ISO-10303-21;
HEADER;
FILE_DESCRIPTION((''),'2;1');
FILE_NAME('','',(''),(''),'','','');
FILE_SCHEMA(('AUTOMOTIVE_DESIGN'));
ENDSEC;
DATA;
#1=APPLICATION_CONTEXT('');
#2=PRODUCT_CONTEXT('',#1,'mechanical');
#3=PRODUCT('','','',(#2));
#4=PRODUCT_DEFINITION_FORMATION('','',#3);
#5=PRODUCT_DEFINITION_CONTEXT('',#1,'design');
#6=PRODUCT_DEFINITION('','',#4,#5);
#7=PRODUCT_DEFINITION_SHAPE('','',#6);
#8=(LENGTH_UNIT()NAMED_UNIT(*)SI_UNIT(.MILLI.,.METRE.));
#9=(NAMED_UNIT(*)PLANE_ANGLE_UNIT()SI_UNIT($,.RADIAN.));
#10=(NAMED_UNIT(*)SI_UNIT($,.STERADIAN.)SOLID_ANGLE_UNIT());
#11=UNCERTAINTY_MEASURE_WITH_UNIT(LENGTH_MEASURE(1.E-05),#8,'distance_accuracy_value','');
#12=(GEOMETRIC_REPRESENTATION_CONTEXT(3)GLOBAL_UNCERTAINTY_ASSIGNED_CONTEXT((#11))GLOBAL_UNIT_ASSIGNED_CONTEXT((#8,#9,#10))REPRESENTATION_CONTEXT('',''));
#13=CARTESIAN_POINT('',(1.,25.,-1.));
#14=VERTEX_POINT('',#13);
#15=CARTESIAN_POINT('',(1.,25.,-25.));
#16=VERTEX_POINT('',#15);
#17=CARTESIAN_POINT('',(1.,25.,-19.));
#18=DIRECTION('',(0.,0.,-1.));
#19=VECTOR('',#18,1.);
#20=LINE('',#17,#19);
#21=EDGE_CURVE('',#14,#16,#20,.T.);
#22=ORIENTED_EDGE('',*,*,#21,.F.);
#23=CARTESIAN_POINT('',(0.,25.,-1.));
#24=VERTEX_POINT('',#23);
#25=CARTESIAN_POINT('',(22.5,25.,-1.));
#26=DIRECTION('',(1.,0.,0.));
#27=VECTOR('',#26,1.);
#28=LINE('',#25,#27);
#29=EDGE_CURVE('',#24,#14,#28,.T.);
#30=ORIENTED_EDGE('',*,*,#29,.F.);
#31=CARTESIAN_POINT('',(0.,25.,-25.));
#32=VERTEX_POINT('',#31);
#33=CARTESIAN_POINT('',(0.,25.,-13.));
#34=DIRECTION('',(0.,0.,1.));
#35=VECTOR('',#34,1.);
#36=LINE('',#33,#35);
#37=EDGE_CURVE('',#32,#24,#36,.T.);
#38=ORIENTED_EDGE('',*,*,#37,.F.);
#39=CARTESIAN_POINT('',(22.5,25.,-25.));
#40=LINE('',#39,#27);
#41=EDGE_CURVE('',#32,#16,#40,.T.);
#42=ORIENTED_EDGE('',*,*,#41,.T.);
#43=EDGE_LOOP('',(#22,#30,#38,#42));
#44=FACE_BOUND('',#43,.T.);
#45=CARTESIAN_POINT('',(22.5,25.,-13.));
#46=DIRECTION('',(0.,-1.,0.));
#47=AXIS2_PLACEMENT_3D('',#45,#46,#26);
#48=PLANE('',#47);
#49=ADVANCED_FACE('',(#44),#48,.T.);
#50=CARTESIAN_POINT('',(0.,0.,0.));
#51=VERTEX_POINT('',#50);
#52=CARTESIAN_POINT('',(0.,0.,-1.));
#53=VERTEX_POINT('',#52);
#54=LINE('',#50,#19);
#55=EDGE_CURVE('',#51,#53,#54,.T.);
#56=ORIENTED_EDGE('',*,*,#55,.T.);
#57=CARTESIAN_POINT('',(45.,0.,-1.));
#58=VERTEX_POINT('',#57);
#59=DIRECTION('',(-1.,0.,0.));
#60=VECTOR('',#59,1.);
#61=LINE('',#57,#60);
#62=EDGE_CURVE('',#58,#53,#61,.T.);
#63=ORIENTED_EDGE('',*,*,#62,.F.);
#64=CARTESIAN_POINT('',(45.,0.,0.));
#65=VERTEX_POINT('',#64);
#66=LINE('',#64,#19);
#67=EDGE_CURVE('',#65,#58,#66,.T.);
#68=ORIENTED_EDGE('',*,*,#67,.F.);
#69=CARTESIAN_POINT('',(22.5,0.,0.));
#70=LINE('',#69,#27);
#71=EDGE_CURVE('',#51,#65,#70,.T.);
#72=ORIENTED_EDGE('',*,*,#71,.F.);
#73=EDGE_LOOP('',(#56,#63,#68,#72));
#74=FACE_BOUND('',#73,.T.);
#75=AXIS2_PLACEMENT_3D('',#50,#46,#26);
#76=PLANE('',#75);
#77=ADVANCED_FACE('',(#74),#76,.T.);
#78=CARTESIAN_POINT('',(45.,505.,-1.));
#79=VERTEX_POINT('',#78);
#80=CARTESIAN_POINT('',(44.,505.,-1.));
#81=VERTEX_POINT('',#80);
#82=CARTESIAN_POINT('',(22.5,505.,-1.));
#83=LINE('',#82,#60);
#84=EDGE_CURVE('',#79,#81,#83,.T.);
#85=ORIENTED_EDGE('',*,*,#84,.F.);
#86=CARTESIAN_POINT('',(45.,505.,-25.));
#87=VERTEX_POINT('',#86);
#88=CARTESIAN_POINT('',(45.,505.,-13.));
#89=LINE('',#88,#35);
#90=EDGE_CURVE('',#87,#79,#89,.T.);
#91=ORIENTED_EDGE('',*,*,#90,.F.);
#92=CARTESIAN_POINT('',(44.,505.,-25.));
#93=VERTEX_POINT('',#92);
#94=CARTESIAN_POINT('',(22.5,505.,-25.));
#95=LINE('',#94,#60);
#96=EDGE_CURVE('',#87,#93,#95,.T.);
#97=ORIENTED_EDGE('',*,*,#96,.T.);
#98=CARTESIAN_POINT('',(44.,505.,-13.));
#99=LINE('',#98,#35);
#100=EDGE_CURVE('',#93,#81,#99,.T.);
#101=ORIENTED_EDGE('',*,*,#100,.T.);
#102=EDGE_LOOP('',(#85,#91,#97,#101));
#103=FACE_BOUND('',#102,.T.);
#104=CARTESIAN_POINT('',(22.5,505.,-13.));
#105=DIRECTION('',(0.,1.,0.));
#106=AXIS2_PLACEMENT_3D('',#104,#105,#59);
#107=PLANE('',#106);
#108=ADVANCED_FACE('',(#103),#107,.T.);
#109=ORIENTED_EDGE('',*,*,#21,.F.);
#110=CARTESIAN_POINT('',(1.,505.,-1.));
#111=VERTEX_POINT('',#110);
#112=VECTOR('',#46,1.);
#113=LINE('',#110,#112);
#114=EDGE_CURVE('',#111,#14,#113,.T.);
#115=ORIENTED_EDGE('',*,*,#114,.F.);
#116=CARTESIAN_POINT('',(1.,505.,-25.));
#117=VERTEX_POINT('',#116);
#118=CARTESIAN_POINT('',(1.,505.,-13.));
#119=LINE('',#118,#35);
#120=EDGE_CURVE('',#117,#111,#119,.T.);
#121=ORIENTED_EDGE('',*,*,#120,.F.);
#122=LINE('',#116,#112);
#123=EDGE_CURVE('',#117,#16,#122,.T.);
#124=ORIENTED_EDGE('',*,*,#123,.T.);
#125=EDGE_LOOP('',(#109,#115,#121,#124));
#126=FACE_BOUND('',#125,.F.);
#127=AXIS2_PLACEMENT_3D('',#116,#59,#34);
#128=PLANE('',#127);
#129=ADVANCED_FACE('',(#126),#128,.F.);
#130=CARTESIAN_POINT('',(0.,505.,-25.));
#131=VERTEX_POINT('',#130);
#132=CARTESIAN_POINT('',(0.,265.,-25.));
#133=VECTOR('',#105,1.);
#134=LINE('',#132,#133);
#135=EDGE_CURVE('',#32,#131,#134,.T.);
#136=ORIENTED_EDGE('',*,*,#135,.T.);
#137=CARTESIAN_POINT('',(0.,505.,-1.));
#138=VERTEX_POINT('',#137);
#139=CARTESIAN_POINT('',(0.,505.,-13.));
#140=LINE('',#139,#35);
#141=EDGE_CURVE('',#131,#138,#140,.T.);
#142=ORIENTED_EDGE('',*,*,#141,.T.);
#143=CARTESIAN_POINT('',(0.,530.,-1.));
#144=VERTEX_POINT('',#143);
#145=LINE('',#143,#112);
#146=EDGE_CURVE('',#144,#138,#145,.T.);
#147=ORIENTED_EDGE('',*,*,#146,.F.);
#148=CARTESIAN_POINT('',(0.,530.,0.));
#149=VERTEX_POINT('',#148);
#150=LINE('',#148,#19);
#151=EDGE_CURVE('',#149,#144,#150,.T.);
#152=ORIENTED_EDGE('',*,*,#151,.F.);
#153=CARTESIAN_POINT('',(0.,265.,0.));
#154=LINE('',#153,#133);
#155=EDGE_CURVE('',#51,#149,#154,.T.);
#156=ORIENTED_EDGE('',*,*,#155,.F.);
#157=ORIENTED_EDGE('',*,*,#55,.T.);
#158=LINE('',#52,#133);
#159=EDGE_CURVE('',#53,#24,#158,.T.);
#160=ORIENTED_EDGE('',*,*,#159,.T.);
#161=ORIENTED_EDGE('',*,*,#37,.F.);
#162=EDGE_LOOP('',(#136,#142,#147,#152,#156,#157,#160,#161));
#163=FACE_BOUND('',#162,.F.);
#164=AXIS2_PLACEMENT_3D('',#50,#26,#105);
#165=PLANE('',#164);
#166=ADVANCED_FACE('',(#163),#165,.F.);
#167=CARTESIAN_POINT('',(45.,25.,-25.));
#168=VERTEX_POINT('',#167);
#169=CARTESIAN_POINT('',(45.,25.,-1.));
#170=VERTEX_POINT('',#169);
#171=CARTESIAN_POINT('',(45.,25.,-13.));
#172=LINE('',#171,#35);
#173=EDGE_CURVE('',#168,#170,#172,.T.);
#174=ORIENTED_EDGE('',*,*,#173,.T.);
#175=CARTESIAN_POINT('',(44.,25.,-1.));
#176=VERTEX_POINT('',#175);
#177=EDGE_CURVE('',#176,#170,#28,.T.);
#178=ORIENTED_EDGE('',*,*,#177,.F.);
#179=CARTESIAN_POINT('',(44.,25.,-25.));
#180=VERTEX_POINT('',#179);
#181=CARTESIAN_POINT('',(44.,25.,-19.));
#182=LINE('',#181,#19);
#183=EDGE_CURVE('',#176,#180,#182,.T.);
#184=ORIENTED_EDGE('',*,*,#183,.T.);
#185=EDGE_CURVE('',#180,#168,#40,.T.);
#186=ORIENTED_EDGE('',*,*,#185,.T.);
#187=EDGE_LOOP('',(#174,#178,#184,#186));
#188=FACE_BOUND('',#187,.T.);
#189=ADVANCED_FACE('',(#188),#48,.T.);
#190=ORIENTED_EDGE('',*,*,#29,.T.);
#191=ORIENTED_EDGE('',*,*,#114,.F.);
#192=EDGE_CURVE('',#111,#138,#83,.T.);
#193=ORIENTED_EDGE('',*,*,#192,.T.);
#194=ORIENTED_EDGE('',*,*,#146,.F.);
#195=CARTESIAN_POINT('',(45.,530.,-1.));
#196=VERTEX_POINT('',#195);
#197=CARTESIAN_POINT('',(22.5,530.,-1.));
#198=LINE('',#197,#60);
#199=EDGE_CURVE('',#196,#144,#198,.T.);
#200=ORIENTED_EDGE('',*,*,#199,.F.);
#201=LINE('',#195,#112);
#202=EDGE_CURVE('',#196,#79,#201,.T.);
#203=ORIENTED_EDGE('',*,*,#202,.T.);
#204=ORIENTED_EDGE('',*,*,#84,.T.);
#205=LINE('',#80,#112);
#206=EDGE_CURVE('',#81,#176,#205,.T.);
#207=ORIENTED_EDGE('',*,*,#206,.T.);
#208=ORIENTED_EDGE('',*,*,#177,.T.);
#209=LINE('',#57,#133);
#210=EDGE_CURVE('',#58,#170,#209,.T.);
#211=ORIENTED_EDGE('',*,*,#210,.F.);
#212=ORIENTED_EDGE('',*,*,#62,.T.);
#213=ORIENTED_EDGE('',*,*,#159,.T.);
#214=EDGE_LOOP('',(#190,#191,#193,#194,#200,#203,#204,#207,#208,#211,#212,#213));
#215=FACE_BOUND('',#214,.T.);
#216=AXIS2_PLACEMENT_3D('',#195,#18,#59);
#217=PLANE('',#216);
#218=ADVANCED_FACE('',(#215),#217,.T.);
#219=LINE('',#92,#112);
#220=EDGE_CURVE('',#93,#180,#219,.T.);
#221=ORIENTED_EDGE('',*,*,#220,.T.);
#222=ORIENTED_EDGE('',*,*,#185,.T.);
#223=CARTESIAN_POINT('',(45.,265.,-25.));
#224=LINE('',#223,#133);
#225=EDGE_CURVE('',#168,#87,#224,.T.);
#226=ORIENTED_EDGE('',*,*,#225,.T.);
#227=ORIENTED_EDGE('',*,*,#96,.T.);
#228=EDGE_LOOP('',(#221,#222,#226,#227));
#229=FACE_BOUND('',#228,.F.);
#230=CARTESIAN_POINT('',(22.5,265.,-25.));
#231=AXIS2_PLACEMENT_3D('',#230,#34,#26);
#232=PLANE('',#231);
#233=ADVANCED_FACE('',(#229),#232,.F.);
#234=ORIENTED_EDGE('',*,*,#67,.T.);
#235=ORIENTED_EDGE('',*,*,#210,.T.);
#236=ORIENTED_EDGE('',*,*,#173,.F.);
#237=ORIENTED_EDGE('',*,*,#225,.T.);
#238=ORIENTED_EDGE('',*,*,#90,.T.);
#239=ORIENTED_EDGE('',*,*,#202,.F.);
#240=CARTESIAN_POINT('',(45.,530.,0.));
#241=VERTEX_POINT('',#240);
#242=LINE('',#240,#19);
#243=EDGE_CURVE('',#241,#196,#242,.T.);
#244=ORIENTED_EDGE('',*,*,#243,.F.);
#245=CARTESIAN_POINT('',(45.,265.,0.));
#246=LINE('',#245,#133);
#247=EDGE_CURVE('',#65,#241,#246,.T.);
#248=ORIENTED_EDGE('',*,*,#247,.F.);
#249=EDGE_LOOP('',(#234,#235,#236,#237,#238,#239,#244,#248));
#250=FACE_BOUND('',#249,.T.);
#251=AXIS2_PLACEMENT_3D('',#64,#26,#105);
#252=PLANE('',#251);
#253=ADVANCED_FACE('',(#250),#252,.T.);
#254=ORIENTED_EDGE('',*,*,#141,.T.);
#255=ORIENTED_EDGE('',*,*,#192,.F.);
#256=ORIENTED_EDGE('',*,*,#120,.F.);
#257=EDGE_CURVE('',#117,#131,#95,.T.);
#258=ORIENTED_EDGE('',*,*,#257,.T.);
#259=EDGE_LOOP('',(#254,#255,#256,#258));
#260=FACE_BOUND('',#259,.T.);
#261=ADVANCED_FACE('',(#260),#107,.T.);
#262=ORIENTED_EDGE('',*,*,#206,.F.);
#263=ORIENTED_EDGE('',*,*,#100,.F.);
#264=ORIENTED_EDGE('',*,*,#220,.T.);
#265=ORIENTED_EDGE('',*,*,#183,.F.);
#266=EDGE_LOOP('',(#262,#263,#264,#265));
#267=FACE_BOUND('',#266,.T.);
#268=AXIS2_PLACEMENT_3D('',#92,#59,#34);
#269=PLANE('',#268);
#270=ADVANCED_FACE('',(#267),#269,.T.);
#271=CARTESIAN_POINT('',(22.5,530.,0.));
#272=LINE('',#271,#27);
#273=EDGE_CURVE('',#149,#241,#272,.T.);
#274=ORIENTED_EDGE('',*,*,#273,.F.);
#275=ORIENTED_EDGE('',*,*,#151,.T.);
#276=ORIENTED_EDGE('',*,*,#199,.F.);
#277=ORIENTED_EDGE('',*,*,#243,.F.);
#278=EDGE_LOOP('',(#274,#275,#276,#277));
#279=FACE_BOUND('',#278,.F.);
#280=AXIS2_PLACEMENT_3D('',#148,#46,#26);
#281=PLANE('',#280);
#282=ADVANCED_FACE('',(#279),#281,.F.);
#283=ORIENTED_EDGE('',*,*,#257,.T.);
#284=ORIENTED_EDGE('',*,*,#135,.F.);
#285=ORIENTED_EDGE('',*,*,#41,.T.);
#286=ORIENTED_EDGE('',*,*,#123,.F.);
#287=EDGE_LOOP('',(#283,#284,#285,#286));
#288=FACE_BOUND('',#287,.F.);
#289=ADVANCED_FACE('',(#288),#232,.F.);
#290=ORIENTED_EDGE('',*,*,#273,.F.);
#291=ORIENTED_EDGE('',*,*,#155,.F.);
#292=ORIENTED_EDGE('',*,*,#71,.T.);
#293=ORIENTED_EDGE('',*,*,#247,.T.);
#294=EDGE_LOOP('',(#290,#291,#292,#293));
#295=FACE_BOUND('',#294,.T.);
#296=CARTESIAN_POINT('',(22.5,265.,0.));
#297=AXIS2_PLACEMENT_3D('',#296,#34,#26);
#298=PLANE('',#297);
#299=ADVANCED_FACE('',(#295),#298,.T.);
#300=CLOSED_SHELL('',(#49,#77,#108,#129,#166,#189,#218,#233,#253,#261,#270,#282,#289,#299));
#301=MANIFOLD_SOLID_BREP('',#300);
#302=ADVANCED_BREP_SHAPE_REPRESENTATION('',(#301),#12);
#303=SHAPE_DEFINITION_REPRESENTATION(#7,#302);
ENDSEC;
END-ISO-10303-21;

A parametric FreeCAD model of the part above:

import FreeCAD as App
import Part
import Sketcher

V = App.Vector
Q = App.Units.Quantity

doc = App.newDocument("Part")
body = doc.addObject("PartDesign::Body", "Body")

# Sketch on XY plane
sketch1 = body.newObject("Sketcher::SketchObject", "Sketch")
sketch1.AttachmentSupport = (doc.getObject("XY_Plane"), [""])
sketch1.MapMode = "FlatFace"
sketch1.addGeometry([
    Part.LineSegment(V(0, 530, 0), V(0, 0, 0)),
    Part.LineSegment(V(0, 0, 0), V(45, 0, 0)),
    Part.LineSegment(V(45, 0, 0), V(45, 530, 0)),
    Part.LineSegment(V(45, 530, 0), V(0, 530, 0)),
], False)
sketch1.addConstraint([
    Sketcher.Constraint("Coincident", 0, 2, 1, 1),
    Sketcher.Constraint("Coincident", 1, 2, 2, 1),
    Sketcher.Constraint("Coincident", 2, 2, 3, 1),
    Sketcher.Constraint("Coincident", 3, 2, 0, 1),
    Sketcher.Constraint("Vertical", 0),
    Sketcher.Constraint("Horizontal", 1),
    Sketcher.Constraint("Vertical", 2),
    Sketcher.Constraint("Horizontal", 3),
    Sketcher.Constraint("Coincident", 0, 2, -1, 1),
    Sketcher.Constraint("DistanceX", 1, 1, 1, 2, Q("45 mm")),
    Sketcher.Constraint("DistanceY", 0, 2, 0, 1, Q("530 mm")),
])
pad1 = body.newObject("PartDesign::Pad", "Pad")
pad1.Profile = sketch1
pad1.Length = 25
pad1.Reversed = True

# Sketch on XZ plane
sketch2 = body.newObject("Sketcher::SketchObject", "Sketch001")
sketch2.AttachmentSupport = (doc.getObject("XZ_Plane"), [""])
sketch2.MapMode = "FlatFace"
sketch2.addGeometry([
    Part.LineSegment(V(0, -1, 0), V(0, -25, 0)),
    Part.LineSegment(V(0, -25, 0), V(45, -25, 0)),
    Part.LineSegment(V(45, -25, 0), V(45, -1, 0)),
    Part.LineSegment(V(45, -1, 0), V(0, -1, 0)),
], False)
sketch2.addConstraint([
    Sketcher.Constraint("Coincident", 0, 2, 1, 1),
    Sketcher.Constraint("Coincident", 1, 2, 2, 1),
    Sketcher.Constraint("Coincident", 2, 2, 3, 1),
    Sketcher.Constraint("Coincident", 3, 2, 0, 1),
    Sketcher.Constraint("Vertical", 0),
    Sketcher.Constraint("Horizontal", 1),
    Sketcher.Constraint("Vertical", 2),
    Sketcher.Constraint("Horizontal", 3),
    Sketcher.Constraint("PointOnObject", 0, 2, -2),
    Sketcher.Constraint("DistanceX", 1, 1, 1, 2, Q("45 mm")),
    Sketcher.Constraint("DistanceY", 0, 2, 0, 1, Q("24 mm")),
    Sketcher.Constraint("DistanceY", 0, 2, -1, 1, Q("25 mm")),
])
pocket1 = body.newObject("PartDesign::Pocket", "Pocket")
pocket1.Profile = sketch2
pocket1.Length = 25

# Sketch on XZ plane
sketch3 = body.newObject("Sketcher::SketchObject", "Sketch002")
sketch3.AttachmentSupport = (doc.getObject("XZ_Plane"), [""])
sketch3.MapMode = "FlatFace"
sketch3.AttachmentOffset = App.Placement(V(0, 0, -530), App.Rotation())
sketch3.addGeometry([
    Part.LineSegment(V(45, -1, 0), V(45, -25, 0)),
    Part.LineSegment(V(45, -25, 0), V(0, -25, 0)),
    Part.LineSegment(V(0, -25, 0), V(0, -1, 0)),
    Part.LineSegment(V(0, -1, 0), V(45, -1, 0)),
], False)
sketch3.addConstraint([
    Sketcher.Constraint("Coincident", 0, 2, 1, 1),
    Sketcher.Constraint("Coincident", 1, 2, 2, 1),
    Sketcher.Constraint("Coincident", 2, 2, 3, 1),
    Sketcher.Constraint("Coincident", 3, 2, 0, 1),
    Sketcher.Constraint("Vertical", 0),
    Sketcher.Constraint("Horizontal", 1),
    Sketcher.Constraint("Vertical", 2),
    Sketcher.Constraint("Horizontal", 3),
    Sketcher.Constraint("PointOnObject", 1, 2, -2),
    Sketcher.Constraint("DistanceX", 1, 2, 1, 1, Q("45 mm")),
    Sketcher.Constraint("DistanceY", 0, 2, 0, 1, Q("24 mm")),
    Sketcher.Constraint("DistanceY", 0, 2, -1, 1, Q("25 mm")),
])
pocket2 = body.newObject("PartDesign::Pocket", "Pocket001")
pocket2.Profile = sketch3
pocket2.Length = 25
pocket2.Reversed = True

# Sketch on XZ plane
sketch4 = body.newObject("Sketcher::SketchObject", "Sketch003")
sketch4.AttachmentSupport = (doc.getObject("XZ_Plane"), [""])
sketch4.MapMode = "FlatFace"
sketch4.AttachmentOffset = App.Placement(V(0, 0, -505), App.Rotation())
sketch4.addGeometry([
    Part.LineSegment(V(44, -1, 0), V(44, -25, 0)),
    Part.LineSegment(V(44, -25, 0), V(1, -25, 0)),
    Part.LineSegment(V(1, -25, 0), V(1, -1, 0)),
    Part.LineSegment(V(1, -1, 0), V(44, -1, 0)),
], False)
sketch4.addConstraint([
    Sketcher.Constraint("Coincident", 0, 2, 1, 1),
    Sketcher.Constraint("Coincident", 1, 2, 2, 1),
    Sketcher.Constraint("Coincident", 2, 2, 3, 1),
    Sketcher.Constraint("Coincident", 3, 2, 0, 1),
    Sketcher.Constraint("Vertical", 0),
    Sketcher.Constraint("Horizontal", 1),
    Sketcher.Constraint("Vertical", 2),
    Sketcher.Constraint("Horizontal", 3),
    Sketcher.Constraint("DistanceX", 1, 2, 1, 1, Q("43 mm")),
    Sketcher.Constraint("DistanceY", 0, 2, 0, 1, Q("24 mm")),
    Sketcher.Constraint("DistanceX", -1, 1, 0, 2, Q("44 mm")),
    Sketcher.Constraint("DistanceY", 0, 2, -1, 1, Q("25 mm")),
])
pocket3 = body.newObject("PartDesign::Pocket", "Pocket002")
pocket3.Profile = sketch4
pocket3.Type = "ThroughAll"
pocket3.Reversed = True

doc.recompute()
